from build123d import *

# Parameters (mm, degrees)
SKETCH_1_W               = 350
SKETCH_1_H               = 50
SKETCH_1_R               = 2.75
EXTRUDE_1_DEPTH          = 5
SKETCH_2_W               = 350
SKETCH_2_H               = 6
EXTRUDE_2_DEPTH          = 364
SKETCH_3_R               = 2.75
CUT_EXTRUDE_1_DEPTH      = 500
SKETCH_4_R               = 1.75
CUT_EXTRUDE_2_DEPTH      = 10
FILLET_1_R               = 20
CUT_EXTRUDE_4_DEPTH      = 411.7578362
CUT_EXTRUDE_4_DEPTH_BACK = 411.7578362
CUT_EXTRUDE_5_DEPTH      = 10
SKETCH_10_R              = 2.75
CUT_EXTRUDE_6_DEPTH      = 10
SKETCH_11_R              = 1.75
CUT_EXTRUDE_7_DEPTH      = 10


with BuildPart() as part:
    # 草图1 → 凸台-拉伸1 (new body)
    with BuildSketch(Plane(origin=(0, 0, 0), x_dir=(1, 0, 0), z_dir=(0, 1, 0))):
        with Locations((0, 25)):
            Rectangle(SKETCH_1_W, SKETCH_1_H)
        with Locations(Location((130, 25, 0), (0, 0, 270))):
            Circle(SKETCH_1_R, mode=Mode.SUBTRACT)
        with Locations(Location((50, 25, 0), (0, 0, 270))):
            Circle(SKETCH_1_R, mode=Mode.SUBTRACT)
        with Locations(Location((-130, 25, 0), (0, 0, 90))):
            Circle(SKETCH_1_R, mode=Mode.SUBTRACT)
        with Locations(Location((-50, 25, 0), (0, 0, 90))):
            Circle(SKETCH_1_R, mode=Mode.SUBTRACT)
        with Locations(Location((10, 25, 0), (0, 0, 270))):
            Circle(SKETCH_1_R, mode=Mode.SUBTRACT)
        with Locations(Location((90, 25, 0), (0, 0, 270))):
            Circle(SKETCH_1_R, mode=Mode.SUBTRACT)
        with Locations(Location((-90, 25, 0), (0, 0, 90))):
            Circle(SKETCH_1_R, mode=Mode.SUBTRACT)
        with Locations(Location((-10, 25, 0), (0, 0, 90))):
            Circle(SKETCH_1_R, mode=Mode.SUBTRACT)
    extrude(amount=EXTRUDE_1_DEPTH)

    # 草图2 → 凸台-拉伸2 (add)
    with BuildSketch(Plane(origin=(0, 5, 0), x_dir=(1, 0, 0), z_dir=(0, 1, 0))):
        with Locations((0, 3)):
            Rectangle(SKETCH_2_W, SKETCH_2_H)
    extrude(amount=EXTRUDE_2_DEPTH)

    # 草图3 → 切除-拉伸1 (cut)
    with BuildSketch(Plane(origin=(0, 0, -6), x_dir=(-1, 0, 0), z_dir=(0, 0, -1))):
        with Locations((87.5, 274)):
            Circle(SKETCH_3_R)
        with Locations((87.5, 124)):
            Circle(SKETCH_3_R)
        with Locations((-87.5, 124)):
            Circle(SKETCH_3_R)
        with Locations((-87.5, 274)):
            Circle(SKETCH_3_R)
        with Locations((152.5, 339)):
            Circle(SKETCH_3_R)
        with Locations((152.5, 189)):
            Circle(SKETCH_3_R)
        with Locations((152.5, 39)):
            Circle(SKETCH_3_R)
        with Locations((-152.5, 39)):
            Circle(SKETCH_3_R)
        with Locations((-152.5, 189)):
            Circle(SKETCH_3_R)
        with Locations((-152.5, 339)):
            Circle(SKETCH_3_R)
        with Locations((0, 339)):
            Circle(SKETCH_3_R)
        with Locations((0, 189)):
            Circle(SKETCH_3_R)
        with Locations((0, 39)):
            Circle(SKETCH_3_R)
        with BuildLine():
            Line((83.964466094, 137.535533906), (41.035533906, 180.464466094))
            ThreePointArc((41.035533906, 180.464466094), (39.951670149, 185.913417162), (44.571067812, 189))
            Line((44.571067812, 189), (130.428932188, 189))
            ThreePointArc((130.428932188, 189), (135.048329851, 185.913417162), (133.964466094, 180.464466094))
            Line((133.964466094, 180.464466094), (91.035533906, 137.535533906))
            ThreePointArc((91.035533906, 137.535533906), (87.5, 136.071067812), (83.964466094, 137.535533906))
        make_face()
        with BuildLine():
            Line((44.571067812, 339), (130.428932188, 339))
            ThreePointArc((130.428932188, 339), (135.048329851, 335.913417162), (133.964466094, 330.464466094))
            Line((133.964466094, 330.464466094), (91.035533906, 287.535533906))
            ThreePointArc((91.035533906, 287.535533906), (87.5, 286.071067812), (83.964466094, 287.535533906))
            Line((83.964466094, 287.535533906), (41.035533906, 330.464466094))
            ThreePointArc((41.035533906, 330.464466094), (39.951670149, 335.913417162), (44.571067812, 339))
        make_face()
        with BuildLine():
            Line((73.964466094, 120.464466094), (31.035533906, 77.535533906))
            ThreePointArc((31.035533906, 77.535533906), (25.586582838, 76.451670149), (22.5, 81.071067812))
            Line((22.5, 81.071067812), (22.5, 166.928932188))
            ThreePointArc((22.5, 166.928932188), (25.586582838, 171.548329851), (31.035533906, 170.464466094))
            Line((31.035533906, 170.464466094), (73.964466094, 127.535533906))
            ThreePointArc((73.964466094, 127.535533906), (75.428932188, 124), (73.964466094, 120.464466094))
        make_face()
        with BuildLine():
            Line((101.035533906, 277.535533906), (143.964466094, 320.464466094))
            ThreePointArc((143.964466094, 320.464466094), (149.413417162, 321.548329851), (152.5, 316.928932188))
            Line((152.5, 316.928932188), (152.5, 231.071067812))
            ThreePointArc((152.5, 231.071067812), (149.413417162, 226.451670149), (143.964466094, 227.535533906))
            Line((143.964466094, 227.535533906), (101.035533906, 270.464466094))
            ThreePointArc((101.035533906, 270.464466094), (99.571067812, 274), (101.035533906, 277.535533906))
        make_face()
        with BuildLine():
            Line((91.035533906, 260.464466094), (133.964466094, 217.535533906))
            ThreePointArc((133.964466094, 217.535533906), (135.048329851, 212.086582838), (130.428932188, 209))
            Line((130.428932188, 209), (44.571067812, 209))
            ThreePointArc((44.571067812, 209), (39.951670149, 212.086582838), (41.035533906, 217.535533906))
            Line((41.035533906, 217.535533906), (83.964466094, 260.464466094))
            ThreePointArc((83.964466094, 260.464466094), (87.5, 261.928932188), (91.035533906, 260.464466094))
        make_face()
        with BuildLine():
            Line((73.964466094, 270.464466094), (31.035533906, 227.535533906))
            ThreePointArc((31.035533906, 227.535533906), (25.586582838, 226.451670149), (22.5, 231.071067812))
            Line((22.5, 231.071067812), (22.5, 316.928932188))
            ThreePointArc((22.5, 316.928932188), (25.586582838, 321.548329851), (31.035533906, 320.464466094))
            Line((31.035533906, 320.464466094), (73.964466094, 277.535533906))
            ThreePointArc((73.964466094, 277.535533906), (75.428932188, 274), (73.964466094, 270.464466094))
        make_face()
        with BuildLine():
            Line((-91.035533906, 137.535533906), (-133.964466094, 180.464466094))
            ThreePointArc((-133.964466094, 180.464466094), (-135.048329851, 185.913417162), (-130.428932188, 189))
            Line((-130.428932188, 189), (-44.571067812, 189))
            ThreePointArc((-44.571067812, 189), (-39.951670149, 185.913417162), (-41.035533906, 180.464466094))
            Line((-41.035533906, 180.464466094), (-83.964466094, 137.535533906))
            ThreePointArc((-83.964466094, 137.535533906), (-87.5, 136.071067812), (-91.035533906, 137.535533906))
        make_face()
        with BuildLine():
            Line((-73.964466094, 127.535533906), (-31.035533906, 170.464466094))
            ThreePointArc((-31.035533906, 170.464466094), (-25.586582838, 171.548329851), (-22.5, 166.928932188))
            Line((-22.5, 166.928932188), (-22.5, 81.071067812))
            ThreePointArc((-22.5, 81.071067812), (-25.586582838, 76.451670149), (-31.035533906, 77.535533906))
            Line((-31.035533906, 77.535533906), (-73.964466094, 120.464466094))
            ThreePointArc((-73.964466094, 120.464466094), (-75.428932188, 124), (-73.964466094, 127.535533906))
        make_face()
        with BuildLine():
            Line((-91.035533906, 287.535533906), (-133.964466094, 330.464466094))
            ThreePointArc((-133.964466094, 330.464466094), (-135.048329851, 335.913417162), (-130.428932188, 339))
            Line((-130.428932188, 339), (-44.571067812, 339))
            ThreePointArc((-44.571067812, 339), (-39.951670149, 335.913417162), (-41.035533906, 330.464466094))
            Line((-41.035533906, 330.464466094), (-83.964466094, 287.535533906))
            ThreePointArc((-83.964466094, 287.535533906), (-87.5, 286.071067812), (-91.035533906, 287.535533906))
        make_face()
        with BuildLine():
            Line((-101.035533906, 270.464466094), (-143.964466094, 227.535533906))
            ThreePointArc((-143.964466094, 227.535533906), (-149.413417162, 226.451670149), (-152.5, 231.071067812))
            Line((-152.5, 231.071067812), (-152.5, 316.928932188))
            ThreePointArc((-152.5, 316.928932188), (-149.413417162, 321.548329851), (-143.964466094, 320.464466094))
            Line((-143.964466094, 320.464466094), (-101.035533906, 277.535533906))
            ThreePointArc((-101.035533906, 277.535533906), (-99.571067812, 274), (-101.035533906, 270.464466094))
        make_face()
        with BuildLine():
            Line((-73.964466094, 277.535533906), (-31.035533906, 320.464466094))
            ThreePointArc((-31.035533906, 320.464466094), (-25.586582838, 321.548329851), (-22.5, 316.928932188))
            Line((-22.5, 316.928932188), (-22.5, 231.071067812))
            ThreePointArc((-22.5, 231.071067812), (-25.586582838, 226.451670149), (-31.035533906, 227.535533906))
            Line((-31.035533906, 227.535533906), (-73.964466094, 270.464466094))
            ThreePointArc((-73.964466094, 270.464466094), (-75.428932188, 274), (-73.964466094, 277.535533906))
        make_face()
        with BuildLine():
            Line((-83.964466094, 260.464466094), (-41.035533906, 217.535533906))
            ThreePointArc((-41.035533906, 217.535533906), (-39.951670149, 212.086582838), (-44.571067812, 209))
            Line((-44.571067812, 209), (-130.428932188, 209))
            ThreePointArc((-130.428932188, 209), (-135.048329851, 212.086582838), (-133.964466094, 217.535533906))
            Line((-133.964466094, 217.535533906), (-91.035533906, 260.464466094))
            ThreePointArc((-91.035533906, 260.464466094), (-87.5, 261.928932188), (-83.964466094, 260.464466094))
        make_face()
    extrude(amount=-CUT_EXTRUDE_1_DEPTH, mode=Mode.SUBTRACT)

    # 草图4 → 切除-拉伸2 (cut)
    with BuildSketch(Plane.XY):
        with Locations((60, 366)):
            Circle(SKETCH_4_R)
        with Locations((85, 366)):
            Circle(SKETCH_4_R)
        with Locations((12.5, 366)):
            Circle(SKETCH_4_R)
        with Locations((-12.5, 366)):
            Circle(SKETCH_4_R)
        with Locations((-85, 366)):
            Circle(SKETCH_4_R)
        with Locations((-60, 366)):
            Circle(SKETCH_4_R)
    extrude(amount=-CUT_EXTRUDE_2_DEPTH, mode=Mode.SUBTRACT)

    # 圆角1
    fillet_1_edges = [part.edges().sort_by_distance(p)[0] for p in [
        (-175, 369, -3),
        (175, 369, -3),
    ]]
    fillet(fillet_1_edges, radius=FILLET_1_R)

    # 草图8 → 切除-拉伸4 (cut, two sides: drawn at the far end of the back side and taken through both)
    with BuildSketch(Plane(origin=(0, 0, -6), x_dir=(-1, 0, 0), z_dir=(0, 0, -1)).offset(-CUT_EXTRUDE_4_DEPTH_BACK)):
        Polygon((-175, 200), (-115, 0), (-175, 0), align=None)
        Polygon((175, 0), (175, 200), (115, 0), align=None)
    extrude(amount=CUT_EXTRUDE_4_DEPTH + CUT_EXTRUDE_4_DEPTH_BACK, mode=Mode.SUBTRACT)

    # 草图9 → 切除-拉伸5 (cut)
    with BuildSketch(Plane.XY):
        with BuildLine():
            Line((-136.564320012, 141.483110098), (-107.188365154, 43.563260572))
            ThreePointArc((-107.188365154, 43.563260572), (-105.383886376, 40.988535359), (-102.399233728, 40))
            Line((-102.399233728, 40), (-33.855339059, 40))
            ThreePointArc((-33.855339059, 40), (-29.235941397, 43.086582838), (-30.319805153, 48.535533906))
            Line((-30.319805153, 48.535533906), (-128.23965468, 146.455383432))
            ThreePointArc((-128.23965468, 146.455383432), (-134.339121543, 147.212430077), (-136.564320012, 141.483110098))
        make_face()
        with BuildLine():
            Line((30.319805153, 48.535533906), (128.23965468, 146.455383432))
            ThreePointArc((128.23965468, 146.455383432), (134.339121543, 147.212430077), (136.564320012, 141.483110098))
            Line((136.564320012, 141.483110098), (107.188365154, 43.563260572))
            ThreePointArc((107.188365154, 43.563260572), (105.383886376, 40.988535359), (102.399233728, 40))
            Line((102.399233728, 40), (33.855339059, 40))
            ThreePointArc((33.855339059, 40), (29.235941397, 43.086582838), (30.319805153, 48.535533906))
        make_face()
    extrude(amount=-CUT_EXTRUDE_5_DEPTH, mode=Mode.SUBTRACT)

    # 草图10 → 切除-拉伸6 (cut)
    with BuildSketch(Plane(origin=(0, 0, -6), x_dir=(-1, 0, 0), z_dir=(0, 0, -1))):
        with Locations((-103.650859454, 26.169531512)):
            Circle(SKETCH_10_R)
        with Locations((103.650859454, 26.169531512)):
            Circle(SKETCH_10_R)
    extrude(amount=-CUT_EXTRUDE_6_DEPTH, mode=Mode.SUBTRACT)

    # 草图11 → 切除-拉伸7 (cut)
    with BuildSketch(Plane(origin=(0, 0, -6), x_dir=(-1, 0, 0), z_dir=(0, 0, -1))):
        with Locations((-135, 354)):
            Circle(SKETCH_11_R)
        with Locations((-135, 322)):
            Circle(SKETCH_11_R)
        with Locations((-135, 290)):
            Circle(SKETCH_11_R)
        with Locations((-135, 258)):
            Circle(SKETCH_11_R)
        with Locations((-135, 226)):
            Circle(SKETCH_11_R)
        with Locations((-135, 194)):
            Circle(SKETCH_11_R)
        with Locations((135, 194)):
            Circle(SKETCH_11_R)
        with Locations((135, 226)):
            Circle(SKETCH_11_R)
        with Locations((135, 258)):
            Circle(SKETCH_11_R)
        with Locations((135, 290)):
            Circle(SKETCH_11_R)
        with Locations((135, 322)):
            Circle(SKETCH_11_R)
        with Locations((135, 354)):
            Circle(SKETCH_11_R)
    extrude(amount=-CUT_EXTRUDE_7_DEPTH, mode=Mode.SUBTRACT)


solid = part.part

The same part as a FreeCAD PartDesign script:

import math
import FreeCAD as App
import Part
import Sketcher

V = App.Vector


def edges_at(feature, points):
    """Names of the edges that pass closest to the given points."""
    edges = feature.Shape.Edges
    near = lambda p: min(range(len(edges)), key=lambda i: edges[i].distToShape(Part.Vertex(*p))[0])
    return sorted({f"Edge{near(p) + 1}" for p in points})

doc = App.newDocument("Part")
body = doc.addObject("PartDesign::Body", "Body")

# Sketch on XZ plane
sketch1 = body.newObject("Sketcher::SketchObject", "Sketch")
sketch1.AttachmentSupport = (doc.getObject("XZ_Plane"), [""])
sketch1.MapMode = "FlatFace"
sketch1.addGeometry(Part.LineSegment(V(-175, -50, 0), V(-175, 0, 0)), False)
sketch1.addGeometry(Part.LineSegment(V(-175, 0, 0), V(175, 0, 0)), False)
sketch1.addGeometry(Part.LineSegment(V(175, 0, 0), V(175, -50, 0)), False)
sketch1.addGeometry(Part.LineSegment(V(175, -50, 0), V(-175, -50, 0)), False)
sketch1.addGeometry(Part.Circle(V(-130, -25, 0), V(0, 0, 1), 2.75), False)
sketch1.addGeometry(Part.Circle(V(-90, -25, 0), V(0, 0, 1), 2.75), False)
sketch1.addGeometry(Part.Circle(V(-50, -25, 0), V(0, 0, 1), 2.75), False)
sketch1.addGeometry(Part.Circle(V(-10, -25, 0), V(0, 0, 1), 2.75), False)
sketch1.addGeometry(Part.Circle(V(10, -25, 0), V(0, 0, 1), 2.75), False)
sketch1.addGeometry(Part.Circle(V(50, -25, 0), V(0, 0, 1), 2.75), False)
sketch1.addGeometry(Part.Circle(V(90, -25, 0), V(0, 0, 1), 2.75), False)
sketch1.addGeometry(Part.Circle(V(130, -25, 0), V(0, 0, 1), 2.75), False)
sketch1.addConstraint(Sketcher.Constraint("Coincident", 0, 2, 1, 1))
sketch1.addConstraint(Sketcher.Constraint("Coincident", 1, 2, 2, 1))
sketch1.addConstraint(Sketcher.Constraint("Coincident", 2, 2, 3, 1))
sketch1.addConstraint(Sketcher.Constraint("Coincident", 3, 2, 0, 1))
sketch1.addConstraint(Sketcher.Constraint("Vertical", 0))
sketch1.addConstraint(Sketcher.Constraint("Horizontal", 1))
sketch1.addConstraint(Sketcher.Constraint("Vertical", 2))
sketch1.addConstraint(Sketcher.Constraint("Horizontal", 3))
sketch1.addConstraint(Sketcher.Constraint("Equal", 4, 5))
sketch1.addConstraint(Sketcher.Constraint("Equal", 5, 6))
sketch1.addConstraint(Sketcher.Constraint("Equal", 6, 7))
sketch1.addConstraint(Sketcher.Constraint("Equal", 7, 8))
sketch1.addConstraint(Sketcher.Constraint("Equal", 8, 9))
sketch1.addConstraint(Sketcher.Constraint("Equal", 9, 10))
sketch1.addConstraint(Sketcher.Constraint("Equal", 10, 11))
sketch1.addConstraint(Sketcher.Constraint("Symmetric", 0, 2, 1, 2, -1, 1))
sketch1.addConstraint(Sketcher.Constraint("Symmetric", 7, 3, 8, 3, -2))
sketch1.addConstraint(Sketcher.Constraint("Symmetric", 6, 3, 9, 3, -2))
sketch1.addConstraint(Sketcher.Constraint("Symmetric", 5, 3, 10, 3, -2))
sketch1.addConstraint(Sketcher.Constraint("Symmetric", 4, 3, 11, 3, -2))
sketch1.addConstraint(Sketcher.Constraint("Horizontal", 4, 3, 5, 3))
sketch1.addConstraint(Sketcher.Constraint("Horizontal", 5, 3, 6, 3))
sketch1.addConstraint(Sketcher.Constraint("Horizontal", 6, 3, 7, 3))
sketch1.addConstraint(Sketcher.Constraint("Diameter", 4, 5.5))
sketch1.addConstraint(Sketcher.Constraint("DistanceX", 1, 1, 1, 2, 350.0))
sketch1.addConstraint(Sketcher.Constraint("DistanceY", 0, 1, 0, 2, 50.0))
sketch1.addConstraint(Sketcher.Constraint("DistanceX", 4, 3, -1, 1, 130.0))
sketch1.addConstraint(Sketcher.Constraint("DistanceY", 4, 3, -1, 1, 25.0))
sketch1.addConstraint(Sketcher.Constraint("DistanceX", 5, 3, -1, 1, 90.0))
sketch1.addConstraint(Sketcher.Constraint("DistanceX", 6, 3, -1, 1, 50.0))
sketch1.addConstraint(Sketcher.Constraint("DistanceX", 7, 3, -1, 1, 10.0))
pad1 = body.newObject("PartDesign::Pad", "Pad")
pad1.Profile = sketch1
pad1.Length = 5
pad1.Reversed = True

# Sketch on XZ plane
sketch2 = body.newObject("Sketcher::SketchObject", "Sketch001")
sketch2.AttachmentSupport = (doc.getObject("XZ_Plane"), [""])
sketch2.MapMode = "FlatFace"
sketch2.AttachmentOffset = App.Placement(V(0, 0, -5), App.Rotation())
sketch2.addGeometry(Part.LineSegment(V(-175, -6, 0), V(-175, 0, 0)), False)
sketch2.addGeometry(Part.LineSegment(V(-175, 0, 0), V(175, 0, 0)), False)
sketch2.addGeometry(Part.LineSegment(V(175, 0, 0), V(175, -6, 0)), False)
sketch2.addGeometry(Part.LineSegment(V(175, -6, 0), V(-175, -6, 0)), False)
sketch2.addConstraint(Sketcher.Constraint("Coincident", 0, 2, 1, 1))
sketch2.addConstraint(Sketcher.Constraint("Coincident", 1, 2, 2, 1))
sketch2.addConstraint(Sketcher.Constraint("Coincident", 2, 2, 3, 1))
sketch2.addConstraint(Sketcher.Constraint("Coincident", 3, 2, 0, 1))
sketch2.addConstraint(Sketcher.Constraint("Vertical", 0))
sketch2.addConstraint(Sketcher.Constraint("Horizontal", 1))
sketch2.addConstraint(Sketcher.Constraint("Vertical", 2))
sketch2.addConstraint(Sketcher.Constraint("Horizontal", 3))
sketch2.addConstraint(Sketcher.Constraint("Symmetric", 0, 2, 1, 2, -1, 1))
sketch2.addConstraint(Sketcher.Constraint("DistanceX", 1, 1, 1, 2, 350.0))
sketch2.addConstraint(Sketcher.Constraint("DistanceY", 0, 1, 0, 2, 6.0))
pad2 = body.newObject("PartDesign::Pad", "Pad001")
pad2.Profile = sketch2
pad2.Length = 364
pad2.Reversed = True

# Sketch on XY plane
sketch3 = body.newObject("Sketcher::SketchObject", "Sketch002")
sketch3.AttachmentSupport = (doc.getObject("XY_Plane"), [""])
sketch3.MapMode = "FlatFace"
sketch3.AttachmentOffset = App.Placement(V(0, 0, -6), App.Rotation())
sketch3.addGeometry(Part.Circle(V(-87.5, 274, 0), V(0, 0, 1), 2.75), False)
sketch3.addGeometry(Part.Circle(V(-87.5, 124, 0), V(0, 0, 1), 2.75), False)
sketch3.addGeometry(Part.Circle(V(87.5, 124, 0), V(0, 0, 1), 2.75), False)
sketch3.addGeometry(Part.Circle(V(87.5, 274, 0), V(0, 0, 1), 2.75), False)
sketch3.addGeometry(Part.Circle(V(-152.5, 339, 0), V(0, 0, 1), 2.75), False)
sketch3.addGeometry(Part.Circle(V(-152.5, 189, 0), V(0, 0, 1), 2.75), False)
sketch3.addGeometry(Part.Circle(V(-152.5, 39, 0), V(0, 0, 1), 2.75), False)
sketch3.addGeometry(Part.Circle(V(152.5, 39, 0), V(0, 0, 1), 2.75), False)
sketch3.addGeometry(Part.Circle(V(152.5, 189, 0), V(0, 0, 1), 2.75), False)
sketch3.addGeometry(Part.Circle(V(152.5, 339, 0), V(0, 0, 1), 2.75), False)
sketch3.addGeometry(Part.Circle(V(0, 339, 0), V(0, 0, 1), 2.75), False)
sketch3.addGeometry(Part.Circle(V(0, 189, 0), V(0, 0, 1), 2.75), False)
sketch3.addGeometry(Part.Circle(V(0, 39, 0), V(0, 0, 1), 2.75), False)
sketch3.addGeometry(Part.LineSegment(V(-41.035534, 180.464466, 0), V(-83.964466, 137.535534, 0)), False)
sketch3.addGeometry(Part.ArcOfCircle(Part.Circle(V(-87.5, 141.071068, 0), V(0, 0, 1), 5), math.radians(-135), math.radians(-45)), False)
sketch3.addGeometry(Part.LineSegment(V(-91.035534, 137.535534, 0), V(-133.964466, 180.464466, 0)), False)
sketch3.addGeometry(Part.ArcOfCircle(Part.Circle(V(-130.428932, 184, 0), V(0, 0, 1), 5), math.radians(90), math.radians(225)), False)
sketch3.addGeometry(Part.LineSegment(V(-130.428932, 189, 0), V(-44.571068, 189, 0)), False)
sketch3.addGeometry(Part.ArcOfCircle(Part.Circle(V(-44.571068, 184, 0), V(0, 0, 1), 5), math.radians(-45), math.radians(90)), False)
sketch3.addGeometry(Part.LineSegment(V(-130.428932, 339, 0), V(-44.571068, 339, 0)), False)
sketch3.addGeometry(Part.ArcOfCircle(Part.Circle(V(-44.571068, 334, 0), V(0, 0, 1), 5), math.radians(-45), math.radians(90)), False)
sketch3.addGeometry(Part.LineSegment(V(-41.035534, 330.464466, 0), V(-83.964466, 287.535534, 0)), False)
sketch3.addGeometry(Part.ArcOfCircle(Part.Circle(V(-87.5, 291.071068, 0), V(0, 0, 1), 5), math.radians(-135), math.radians(-45)), False)
sketch3.addGeometry(Part.LineSegment(V(-91.035534, 287.535534, 0), V(-133.964466, 330.464466, 0)), False)
sketch3.addGeometry(Part.ArcOfCircle(Part.Circle(V(-130.428932, 334, 0), V(0, 0, 1), 5), math.radians(90), math.radians(225)), False)
sketch3.addGeometry(Part.LineSegment(V(-31.035534, 77.535534, 0), V(-73.964466, 120.464466, 0)), False)
sketch3.addGeometry(Part.ArcOfCircle(Part.Circle(V(-70.428932, 124, 0), V(0, 0, 1), 5), math.radians(135), math.radians(225)), False)
sketch3.addGeometry(Part.LineSegment(V(-73.964466, 127.535534, 0), V(-31.035534, 170.464466, 0)), False)
sketch3.addGeometry(Part.ArcOfCircle(Part.Circle(V(-27.5, 166.928932, 0), V(0, 0, 1), 5), math.radians(0), math.radians(135)), False)
sketch3.addGeometry(Part.LineSegment(V(-22.5, 166.928932, 0), V(-22.5, 81.071068, 0)), False)
sketch3.addGeometry(Part.ArcOfCircle(Part.Circle(V(-27.5, 81.071068, 0), V(0, 0, 1), 5), math.radians(-135), math.radians(0)), False)
sketch3.addGeometry(Part.LineSegment(V(-143.964466, 320.464466, 0), V(-101.035534, 277.535534, 0)), False)
sketch3.addGeometry(Part.ArcOfCircle(Part.Circle(V(-104.571068, 274, 0), V(0, 0, 1), 5), math.radians(-45), math.radians(45)), False)
sketch3.addGeometry(Part.LineSegment(V(-101.035534, 270.464466, 0), V(-143.964466, 227.535534, 0)), False)
sketch3.addGeometry(Part.ArcOfCircle(Part.Circle(V(-147.5, 231.071068, 0), V(0, 0, 1), 5), math.radians(180), math.radians(315)), False)
sketch3.addGeometry(Part.LineSegment(V(-152.5, 231.071068, 0), V(-152.5, 316.928932, 0)), False)
sketch3.addGeometry(Part.ArcOfCircle(Part.Circle(V(-147.5, 316.928932, 0), V(0, 0, 1), 5), math.radians(45), math.radians(180)), False)
sketch3.addGeometry(Part.LineSegment(V(-133.964466, 217.535534, 0), V(-91.035534, 260.464466, 0)), False)
sketch3.addGeometry(Part.ArcOfCircle(Part.Circle(V(-87.5, 256.928932, 0), V(0, 0, 1), 5), math.radians(45), math.radians(135)), False)
sketch3.addGeometry(Part.LineSegment(V(-83.964466, 260.464466, 0), V(-41.035534, 217.535534, 0)), False)
sketch3.addGeometry(Part.ArcOfCircle(Part.Circle(V(-44.571068, 214, 0), V(0, 0, 1), 5), math.radians(-90), math.radians(45)), False)
sketch3.addGeometry(Part.LineSegment(V(-44.571068, 209, 0), V(-130.428932, 209, 0)), False)
sketch3.addGeometry(Part.ArcOfCircle(Part.Circle(V(-130.428932, 214, 0), V(0, 0, 1), 5), math.radians(135), math.radians(270)), False)
sketch3.addGeometry(Part.LineSegment(V(-31.035534, 227.535534, 0), V(-73.964466, 270.464466, 0)), False)
sketch3.addGeometry(Part.ArcOfCircle(Part.Circle(V(-70.428932, 274, 0), V(0, 0, 1), 5), math.radians(135), math.radians(225)), False)
sketch3.addGeometry(Part.LineSegment(V(-73.964466, 277.535534, 0), V(-31.035534, 320.464466, 0)), False)
sketch3.addGeometry(Part.ArcOfCircle(Part.Circle(V(-27.5, 316.928932, 0), V(0, 0, 1), 5), math.radians(0), math.radians(135)), False)
sketch3.addGeometry(Part.LineSegment(V(-22.5, 316.928932, 0), V(-22.5, 231.071068, 0)), False)
sketch3.addGeometry(Part.ArcOfCircle(Part.Circle(V(-27.5, 231.071068, 0), V(0, 0, 1), 5), math.radians(-135), math.radians(0)), False)
sketch3.addGeometry(Part.LineSegment(V(133.964466, 180.464466, 0), V(91.035534, 137.535534, 0)), False)
sketch3.addGeometry(Part.ArcOfCircle(Part.Circle(V(87.5, 141.071068, 0), V(0, 0, 1), 5), math.radians(-135), math.radians(-45)), False)
sketch3.addGeometry(Part.LineSegment(V(83.964466, 137.535534, 0), V(41.035534, 180.464466, 0)), False)
sketch3.addGeometry(Part.ArcOfCircle(Part.Circle(V(44.571068, 184, 0), V(0, 0, 1), 5), math.radians(90), math.radians(225)), False)
sketch3.addGeometry(Part.LineSegment(V(44.571068, 189, 0), V(130.428932, 189, 0)), False)
sketch3.addGeometry(Part.ArcOfCircle(Part.Circle(V(130.428932, 184, 0), V(0, 0, 1), 5), math.radians(-45), math.radians(90)), False)
sketch3.addGeometry(Part.LineSegment(V(31.035534, 170.464466, 0), V(73.964466, 127.535534, 0)), False)
sketch3.addGeometry(Part.ArcOfCircle(Part.Circle(V(70.428932, 124, 0), V(0, 0, 1), 5), math.radians(-45), math.radians(45)), False)
sketch3.addGeometry(Part.LineSegment(V(73.964466, 120.464466, 0), V(31.035534, 77.535534, 0)), False)
sketch3.addGeometry(Part.ArcOfCircle(Part.Circle(V(27.5, 81.071068, 0), V(0, 0, 1), 5), math.radians(180), math.radians(315)), False)
sketch3.addGeometry(Part.LineSegment(V(22.5, 81.071068, 0), V(22.5, 166.928932, 0)), False)
sketch3.addGeometry(Part.ArcOfCircle(Part.Circle(V(27.5, 166.928932, 0), V(0, 0, 1), 5), math.radians(45), math.radians(180)), False)
sketch3.addGeometry(Part.LineSegment(V(133.964466, 330.464466, 0), V(91.035534, 287.535534, 0)), False)
sketch3.addGeometry(Part.ArcOfCircle(Part.Circle(V(87.5, 291.071068, 0), V(0, 0, 1), 5), math.radians(-135), math.radians(-45)), False)
sketch3.addGeometry(Part.LineSegment(V(83.964466, 287.535534, 0), V(41.035534, 330.464466, 0)), False)
sketch3.addGeometry(Part.ArcOfCircle(Part.Circle(V(44.571068, 334, 0), V(0, 0, 1), 5), math.radians(90), math.radians(225)), False)
sketch3.addGeometry(Part.LineSegment(V(44.571068, 339, 0), V(130.428932, 339, 0)), False)
sketch3.addGeometry(Part.ArcOfCircle(Part.Circle(V(130.428932, 334, 0), V(0, 0, 1), 5), math.radians(-45), math.radians(90)), False)
sketch3.addGeometry(Part.LineSegment(V(143.964466, 227.535534, 0), V(101.035534, 270.464466, 0)), False)
sketch3.addGeometry(Part.ArcOfCircle(Part.Circle(V(104.571068, 274, 0), V(0, 0, 1), 5), math.radians(135), math.radians(225)), False)
sketch3.addGeometry(Part.LineSegment(V(101.035534, 277.535534, 0), V(143.964466, 320.464466, 0)), False)
sketch3.addGeometry(Part.ArcOfCircle(Part.Circle(V(147.5, 316.928932, 0), V(0, 0, 1), 5), math.radians(0), math.radians(135)), False)
sketch3.addGeometry(Part.LineSegment(V(152.5, 316.928932, 0), V(152.5, 231.071068, 0)), False)
sketch3.addGeometry(Part.ArcOfCircle(Part.Circle(V(147.5, 231.071068, 0), V(0, 0, 1), 5), math.radians(-135), math.radians(0)), False)
sketch3.addGeometry(Part.LineSegment(V(31.035534, 320.464466, 0), V(73.964466, 277.535534, 0)), False)
sketch3.addGeometry(Part.ArcOfCircle(Part.Circle(V(70.428932, 274, 0), V(0, 0, 1), 5), math.radians(-45), math.radians(45)), False)
sketch3.addGeometry(Part.LineSegment(V(73.964466, 270.464466, 0), V(31.035534, 227.535534, 0)), False)
sketch3.addGeometry(Part.ArcOfCircle(Part.Circle(V(27.5, 231.071068, 0), V(0, 0, 1), 5), math.radians(180), math.radians(315)), False)
sketch3.addGeometry(Part.LineSegment(V(22.5, 231.071068, 0), V(22.5, 316.928932, 0)), False)
sketch3.addGeometry(Part.ArcOfCircle(Part.Circle(V(27.5, 316.928932, 0), V(0, 0, 1), 5), math.radians(45), math.radians(180)), False)
sketch3.addGeometry(Part.LineSegment(V(41.035534, 217.535534, 0), V(83.964466, 260.464466, 0)), False)
sketch3.addGeometry(Part.ArcOfCircle(Part.Circle(V(87.5, 256.928932, 0), V(0, 0, 1), 5), math.radians(45), math.radians(135)), False)
sketch3.addGeometry(Part.LineSegment(V(91.035534, 260.464466, 0), V(133.964466, 217.535534, 0)), False)
sketch3.addGeometry(Part.ArcOfCircle(Part.Circle(V(130.428932, 214, 0), V(0, 0, 1), 5), math.radians(-90), math.radians(45)), False)
sketch3.addGeometry(Part.LineSegment(V(130.428932, 209, 0), V(44.571068, 209, 0)), False)
sketch3.addGeometry(Part.ArcOfCircle(Part.Circle(V(44.571068, 214, 0), V(0, 0, 1), 5), math.radians(135), math.radians(270)), False)
sketch3.addConstraint(Sketcher.Constraint("Tangent", 13, 2, 14, 2))
sketch3.addConstraint(Sketcher.Constraint("Tangent", 14, 1, 15, 1))
sketch3.addConstraint(Sketcher.Constraint("Tangent", 15, 2, 16, 2))
sketch3.addConstraint(Sketcher.Constraint("Tangent", 16, 1, 17, 1))
sketch3.addConstraint(Sketcher.Constraint("Tangent", 17, 2, 18, 2))
sketch3.addConstraint(Sketcher.Constraint("Tangent", 18, 1, 13, 1))
sketch3.addConstraint(Sketcher.Constraint("Tangent", 19, 2, 20, 2))
sketch3.addConstraint(Sketcher.Constraint("Tangent", 20, 1, 21, 1))
sketch3.addConstraint(Sketcher.Constraint("Tangent", 21, 2, 22, 2))
sketch3.addConstraint(Sketcher.Constraint("Tangent", 22, 1, 23, 1))
sketch3.addConstraint(Sketcher.Constraint("Tangent", 23, 2, 24, 2))
sketch3.addConstraint(Sketcher.Constraint("Tangent", 24, 1, 19, 1))
sketch3.addConstraint(Sketcher.Constraint("Tangent", 25, 2, 26, 2))
sketch3.addConstraint(Sketcher.Constraint("Tangent", 26, 1, 27, 1))
sketch3.addConstraint(Sketcher.Constraint("Tangent", 27, 2, 28, 2))
sketch3.addConstraint(Sketcher.Constraint("Tangent", 28, 1, 29, 1))
sketch3.addConstraint(Sketcher.Constraint("Tangent", 29, 2, 30, 2))
sketch3.addConstraint(Sketcher.Constraint("Tangent", 30, 1, 25, 1))
sketch3.addConstraint(Sketcher.Constraint("Tangent", 31, 2, 32, 2))
sketch3.addConstraint(Sketcher.Constraint("Tangent", 32, 1, 33, 1))
sketch3.addConstraint(Sketcher.Constraint("Tangent", 33, 2, 34, 2))
sketch3.addConstraint(Sketcher.Constraint("Tangent", 34, 1, 35, 1))
sketch3.addConstraint(Sketcher.Constraint("Tangent", 35, 2, 36, 2))
sketch3.addConstraint(Sketcher.Constraint("Tangent", 36, 1, 31, 1))
sketch3.addConstraint(Sketcher.Constraint("Tangent", 37, 2, 38, 2))
sketch3.addConstraint(Sketcher.Constraint("Tangent", 38, 1, 39, 1))
sketch3.addConstraint(Sketcher.Constraint("Tangent", 39, 2, 40, 2))
sketch3.addConstraint(Sketcher.Constraint("Tangent", 40, 1, 41, 1))
sketch3.addConstraint(Sketcher.Constraint("Tangent", 41, 2, 42, 2))
sketch3.addConstraint(Sketcher.Constraint("Tangent", 42, 1, 37, 1))
sketch3.addConstraint(Sketcher.Constraint("Tangent", 43, 2, 44, 2))
sketch3.addConstraint(Sketcher.Constraint("Tangent", 44, 1, 45, 1))
sketch3.addConstraint(Sketcher.Constraint("Tangent", 45, 2, 46, 2))
sketch3.addConstraint(Sketcher.Constraint("Tangent", 46, 1, 47, 1))
sketch3.addConstraint(Sketcher.Constraint("Tangent", 47, 2, 48, 2))
sketch3.addConstraint(Sketcher.Constraint("Tangent", 48, 1, 43, 1))
sketch3.addConstraint(Sketcher.Constraint("Tangent", 49, 2, 50, 2))
sketch3.addConstraint(Sketcher.Constraint("Tangent", 50, 1, 51, 1))
sketch3.addConstraint(Sketcher.Constraint("Tangent", 51, 2, 52, 2))
sketch3.addConstraint(Sketcher.Constraint("Tangent", 52, 1, 53, 1))
sketch3.addConstraint(Sketcher.Constraint("Tangent", 53, 2, 54, 2))
sketch3.addConstraint(Sketcher.Constraint("Tangent", 54, 1, 49, 1))
sketch3.addConstraint(Sketcher.Constraint("Tangent", 55, 2, 56, 2))
sketch3.addConstraint(Sketcher.Constraint("Tangent", 56, 1, 57, 1))
sketch3.addConstraint(Sketcher.Constraint("Tangent", 57, 2, 58, 2))
sketch3.addConstraint(Sketcher.Constraint("Tangent", 58, 1, 59, 1))
sketch3.addConstraint(Sketcher.Constraint("Tangent", 59, 2, 60, 2))
sketch3.addConstraint(Sketcher.Constraint("Tangent", 60, 1, 55, 1))
sketch3.addConstraint(Sketcher.Constraint("Tangent", 61, 2, 62, 2))
sketch3.addConstraint(Sketcher.Constraint("Tangent", 62, 1, 63, 1))
sketch3.addConstraint(Sketcher.Constraint("Tangent", 63, 2, 64, 2))
sketch3.addConstraint(Sketcher.Constraint("Tangent", 64, 1, 65, 1))
sketch3.addConstraint(Sketcher.Constraint("Tangent", 65, 2, 66, 2))
sketch3.addConstraint(Sketcher.Constraint("Tangent", 66, 1, 61, 1))
sketch3.addConstraint(Sketcher.Constraint("Tangent", 67, 2, 68, 2))
sketch3.addConstraint(Sketcher.Constraint("Tangent", 68, 1, 69, 1))
sketch3.addConstraint(Sketcher.Constraint("Tangent", 69, 2, 70, 2))
sketch3.addConstraint(Sketcher.Constraint("Tangent", 70, 1, 71, 1))
sketch3.addConstraint(Sketcher.Constraint("Tangent", 71, 2, 72, 2))
sketch3.addConstraint(Sketcher.Constraint("Tangent", 72, 1, 67, 1))
sketch3.addConstraint(Sketcher.Constraint("Tangent", 73, 2, 74, 2))
sketch3.addConstraint(Sketcher.Constraint("Tangent", 74, 1, 75, 1))
sketch3.addConstraint(Sketcher.Constraint("Tangent", 75, 2, 76, 2))
sketch3.addConstraint(Sketcher.Constraint("Tangent", 76, 1, 77, 1))
sketch3.addConstraint(Sketcher.Constraint("Tangent", 77, 2, 78, 2))
sketch3.addConstraint(Sketcher.Constraint("Tangent", 78, 1, 73, 1))
sketch3.addConstraint(Sketcher.Constraint("Tangent", 79, 2, 80, 2))
sketch3.addConstraint(Sketcher.Constraint("Tangent", 80, 1, 81, 1))
sketch3.addConstraint(Sketcher.Constraint("Tangent", 81, 2, 82, 2))
sketch3.addConstraint(Sketcher.Constraint("Tangent", 82, 1, 83, 1))
sketch3.addConstraint(Sketcher.Constraint("Tangent", 83, 2, 84, 2))
sketch3.addConstraint(Sketcher.Constraint("Tangent", 84, 1, 79, 1))
sketch3.addConstraint(Sketcher.Constraint("Horizontal", 17))
sketch3.addConstraint(Sketcher.Constraint("Horizontal", 19))
sketch3.addConstraint(Sketcher.Constraint("Vertical", 29))
sketch3.addConstraint(Sketcher.Constraint("Vertical", 35))
sketch3.addConstraint(Sketcher.Constraint("Horizontal", 41))
sketch3.addConstraint(Sketcher.Constraint("Vertical", 47))
sketch3.addConstraint(Sketcher.Constraint("Horizontal", 53))
sketch3.addConstraint(Sketcher.Constraint("Vertical", 59))
sketch3.addConstraint(Sketcher.Constraint("Horizontal", 65))
sketch3.addConstraint(Sketcher.Constraint("Vertical", 71))
sketch3.addConstraint(Sketcher.Constraint("Vertical", 77))
sketch3.addConstraint(Sketcher.Constraint("Horizontal", 83))
sketch3.addConstraint(Sketcher.Constraint("Equal", 0, 1))
sketch3.addConstraint(Sketcher.Constraint("Equal", 1, 2))
sketch3.addConstraint(Sketcher.Constraint("Equal", 2, 3))
sketch3.addConstraint(Sketcher.Constraint("Equal", 3, 4))
sketch3.addConstraint(Sketcher.Constraint("Equal", 4, 5))
sketch3.addConstraint(Sketcher.Constraint("Equal", 5, 6))
sketch3.addConstraint(Sketcher.Constraint("Equal", 6, 7))
sketch3.addConstraint(Sketcher.Constraint("Equal", 7, 8))
sketch3.addConstraint(Sketcher.Constraint("Equal", 8, 9))
sketch3.addConstraint(Sketcher.Constraint("Equal", 9, 10))
sketch3.addConstraint(Sketcher.Constraint("Equal", 10, 11))
sketch3.addConstraint(Sketcher.Constraint("Equal", 11, 12))
sketch3.addConstraint(Sketcher.Constraint("Equal", 14, 16))
sketch3.addConstraint(Sketcher.Constraint("Equal", 16, 18))
sketch3.addConstraint(Sketcher.Constraint("Equal", 18, 20))
sketch3.addConstraint(Sketcher.Constraint("Equal", 20, 22))
sketch3.addConstraint(Sketcher.Constraint("Equal", 22, 24))
sketch3.addConstraint(Sketcher.Constraint("Equal", 24, 26))
sketch3.addConstraint(Sketcher.Constraint("Equal", 26, 28))
sketch3.addConstraint(Sketcher.Constraint("Equal", 28, 30))
sketch3.addConstraint(Sketcher.Constraint("Equal", 30, 32))
sketch3.addConstraint(Sketcher.Constraint("Equal", 32, 34))
sketch3.addConstraint(Sketcher.Constraint("Equal", 34, 36))
sketch3.addConstraint(Sketcher.Constraint("Equal", 36, 38))
sketch3.addConstraint(Sketcher.Constraint("Equal", 38, 40))
sketch3.addConstraint(Sketcher.Constraint("Equal", 40, 42))
sketch3.addConstraint(Sketcher.Constraint("Equal", 42, 44))
sketch3.addConstraint(Sketcher.Constraint("Equal", 44, 46))
sketch3.addConstraint(Sketcher.Constraint("Equal", 46, 48))
sketch3.addConstraint(Sketcher.Constraint("Equal", 48, 50))
sketch3.addConstraint(Sketcher.Constraint("Equal", 50, 52))
sketch3.addConstraint(Sketcher.Constraint("Equal", 52, 54))
sketch3.addConstraint(Sketcher.Constraint("Equal", 54, 56))
sketch3.addConstraint(Sketcher.Constraint("Equal", 56, 58))
sketch3.addConstraint(Sketcher.Constraint("Equal", 58, 60))
sketch3.addConstraint(Sketcher.Constraint("Equal", 60, 62))
sketch3.addConstraint(Sketcher.Constraint("Equal", 62, 64))
sketch3.addConstraint(Sketcher.Constraint("Equal", 64, 66))
sketch3.addConstraint(Sketcher.Constraint("Equal", 66, 68))
sketch3.addConstraint(Sketcher.Constraint("Equal", 68, 70))
sketch3.addConstraint(Sketcher.Constraint("Equal", 70, 72))
sketch3.addConstraint(Sketcher.Constraint("Equal", 72, 74))
sketch3.addConstraint(Sketcher.Constraint("Equal", 74, 76))
sketch3.addConstraint(Sketcher.Constraint("Equal", 76, 78))
sketch3.addConstraint(Sketcher.Constraint("Equal", 78, 80))
sketch3.addConstraint(Sketcher.Constraint("Equal", 80, 82))
sketch3.addConstraint(Sketcher.Constraint("Equal", 82, 84))
sketch3.addConstraint(Sketcher.Constraint("Symmetric", 1, 3, 2, 3, -2))
sketch3.addConstraint(Sketcher.Constraint("Symmetric", 0, 3, 3, 3, -2))
sketch3.addConstraint(Sketcher.Constraint("Symmetric", 6, 3, 7, 3, -2))
sketch3.addConstraint(Sketcher.Constraint("Symmetric", 5, 3, 8, 3, -2))
sketch3.addConstraint(Sketcher.Constraint("Symmetric", 4, 3, 9, 3, -2))
sketch3.addConstraint(Sketcher.Constraint("Symmetric", 14, 3, 50, 3, -2))
sketch3.addConstraint(Sketcher.Constraint("Symmetric", 18, 3, 52, 3, -2))
sketch3.addConstraint(Sketcher.Constraint("Symmetric", 26, 3, 56, 3, -2))
sketch3.addConstraint(Sketcher.Constraint("Symmetric", 30, 3, 58, 3, -2))
sketch3.addConstraint(Sketcher.Constraint("Symmetric", 22, 3, 62, 3, -2))
sketch3.addConstraint(Sketcher.Constraint("Symmetric", 20, 3, 64, 3, -2))
sketch3.addConstraint(Sketcher.Constraint("Symmetric", 32, 3, 68, 3, -2))
sketch3.addConstraint(Sketcher.Constraint("Symmetric", 36, 3, 70, 3, -2))
sketch3.addConstraint(Sketcher.Constraint("Symmetric", 44, 3, 74, 3, -2))
sketch3.addConstraint(Sketcher.Constraint("Symmetric", 48, 3, 76, 3, -2))
sketch3.addConstraint(Sketcher.Constraint("Symmetric", 38, 3, 80, 3, -2))
sketch3.addConstraint(Sketcher.Constraint("Symmetric", 42, 3, 82, 3, -2))
sketch3.addConstraint(Sketcher.Constraint("PointOnObject", 10, 3, -2))
sketch3.addConstraint(Sketcher.Constraint("PointOnObject", 11, 3, -2))
sketch3.addConstraint(Sketcher.Constraint("PointOnObject", 12, 3, -2))
sketch3.addConstraint(Sketcher.Constraint("Perpendicular", 13, 15))
sketch3.addConstraint(Sketcher.Constraint("Perpendicular", 15, 21))
sketch3.addConstraint(Sketcher.Constraint("Perpendicular", 21, 23))
sketch3.addConstraint(Sketcher.Constraint("Parallel", 23, 25))
sketch3.addConstraint(Sketcher.Constraint("Perpendicular", 25, 27))
sketch3.addConstraint(Sketcher.Constraint("Perpendicular", 27, 31))
sketch3.addConstraint(Sketcher.Constraint("Perpendicular", 31, 33))
sketch3.addConstraint(Sketcher.Constraint("Parallel", 33, 37))
sketch3.addConstraint(Sketcher.Constraint("Perpendicular", 37, 39))
sketch3.addConstraint(Sketcher.Constraint("Parallel", 39, 43))
sketch3.addConstraint(Sketcher.Constraint("Perpendicular", 43, 45))
sketch3.addConstraint(Sketcher.Constraint("Parallel", 45, 49))
sketch3.addConstraint(Sketcher.Constraint("Perpendicular", 49, 51))
sketch3.addConstraint(Sketcher.Constraint("Parallel", 51, 55))
sketch3.addConstraint(Sketcher.Constraint("Parallel", 57, 61))
sketch3.addConstraint(Sketcher.Constraint("Parallel", 63, 67))
sketch3.addConstraint(Sketcher.Constraint("Perpendicular", 69, 73))
sketch3.addConstraint(Sketcher.Constraint("Parallel", 75, 79))
sketch3.addConstraint(Sketcher.Constraint("Horizontal", 9, 3, 10, 3))
sketch3.addConstraint(Sketcher.Constraint("Horizontal", 8, 3, 11, 3))
sketch3.addConstraint(Sketcher.Constraint("Horizontal", 7, 3, 12, 3))
sketch3.addConstraint(Sketcher.Constraint("Horizontal", 2, 3, 26, 3))
sketch3.addConstraint(Sketcher.Constraint("Horizontal", 3, 3, 32, 3))
sketch3.addConstraint(Sketcher.Constraint("Horizontal", 32, 3, 44, 3))
sketch3.addConstraint(Sketcher.Constraint("Horizontal", 36, 3, 46, 3))
sketch3.addConstraint(Sketcher.Constraint("Horizontal", 11, 3, 16, 1))
sketch3.addConstraint(Sketcher.Constraint("Horizontal", 10, 3, 19, 2))
sketch3.addConstraint(Sketcher.Constraint("Vertical", 0, 3, 1, 3))
sketch3.addConstraint(Sketcher.Constraint("Vertical", 4, 3, 5, 3))
sketch3.addConstraint(Sketcher.Constraint("Vertical", 5, 3, 6, 3))
sketch3.addConstraint(Sketcher.Constraint("Vertical", 1, 3, 14, 3))
sketch3.addConstraint(Sketcher.Constraint("Vertical", 18, 3, 20, 3))
sketch3.addConstraint(Sketcher.Constraint("Vertical", 14, 3, 22, 3))
sketch3.addConstraint(Sketcher.Constraint("Vertical", 22, 3, 38, 3))
sketch3.addConstraint(Sketcher.Constraint("Vertical", 20, 3, 40, 3))
sketch3.addConstraint(Sketcher.Constraint("Vertical", 26, 3, 44, 3))
sketch3.addConstraint(Sketcher.Constraint("Vertical", 30, 3, 46, 3))
sketch3.addConstraint(Sketcher.Constraint("Vertical", 6, 3, 34, 1))
sketch3.addConstraint(Sketcher.Constraint("Equal", 83, 29))
sketch3.addConstraint(Sketcher.Constraint("Radius", 14, 5.0))
sketch3.addConstraint(Sketcher.Constraint("Diameter", 0, 5.5))
sketch3.addConstraint(Sketcher.Constraint("DistanceY", -1, 1, 0, 3, 274.0))
sketch3.addConstraint(Sketcher.Constraint("DistanceY", -1, 1, 1, 3, 124.0))
sketch3.addConstraint(Sketcher.Constraint("DistanceY", -1, 1, 4, 3, 339.0))
sketch3.addConstraint(Sketcher.Constraint("DistanceY", -1, 1, 5, 3, 189.0))
sketch3.addConstraint(Sketcher.Constraint("DistanceY", -1, 1, 6, 3, 39.0))
sketch3.addConstraint(Sketcher.Constraint("DistanceY", -1, 1, 40, 3, 214.0))
sketch3.addConstraint(Sketcher.Constraint("DistanceX", 0, 3, -1, 1, 87.5))
sketch3.addConstraint(Sketcher.Constraint("DistanceX", 4, 3, -1, 1, 152.5))
sketch3.addConstraint(Sketcher.Constraint("DistanceX", 28, 3, -1, 1, 27.5))
sketch3.addConstraint(Sketcher.Constraint("Distance", 13, 60.710678))
pocket1 = body.newObject("PartDesign::Pocket", "Pocket")
pocket1.Profile = sketch3
pocket1.Length = 500
pocket1.Reversed = True

# Sketch on XY plane
sketch4 = body.newObject("Sketcher::SketchObject", "Sketch003")
sketch4.AttachmentSupport = (doc.getObject("XY_Plane"), [""])
sketch4.MapMode = "FlatFace"
sketch4.addGeometry(Part.Circle(V(60, 366, 0), V(0, 0, 1), 1.75), False)
sketch4.addGeometry(Part.Circle(V(85, 366, 0), V(0, 0, 1), 1.75), False)
sketch4.addGeometry(Part.Circle(V(12.5, 366, 0), V(0, 0, 1), 1.75), False)
sketch4.addGeometry(Part.Circle(V(-12.5, 366, 0), V(0, 0, 1), 1.75), False)
sketch4.addGeometry(Part.Circle(V(-85, 366, 0), V(0, 0, 1), 1.75), False)
sketch4.addGeometry(Part.Circle(V(-60, 366, 0), V(0, 0, 1), 1.75), False)
sketch4.addConstraint(Sketcher.Constraint("Equal", 0, 1))
sketch4.addConstraint(Sketcher.Constraint("Equal", 1, 2))
sketch4.addConstraint(Sketcher.Constraint("Equal", 2, 3))
sketch4.addConstraint(Sketcher.Constraint("Equal", 3, 4))
sketch4.addConstraint(Sketcher.Constraint("Equal", 4, 5))
sketch4.addConstraint(Sketcher.Constraint("Symmetric", 2, 3, 3, 3, -2))
sketch4.addConstraint(Sketcher.Constraint("Symmetric", 1, 3, 4, 3, -2))
sketch4.addConstraint(Sketcher.Constraint("Symmetric", 0, 3, 5, 3, -2))
sketch4.addConstraint(Sketcher.Constraint("Horizontal", 0, 3, 1, 3))
sketch4.addConstraint(Sketcher.Constraint("Horizontal", 1, 3, 2, 3))
sketch4.addConstraint(Sketcher.Constraint("Diameter", 0, 3.5))
sketch4.addConstraint(Sketcher.Constraint("DistanceX", -1, 1, 0, 3, 60.0))
sketch4.addConstraint(Sketcher.Constraint("DistanceY", -1, 1, 0, 3, 366.0))
sketch4.addConstraint(Sketcher.Constraint("DistanceX", -1, 1, 1, 3, 85.0))
sketch4.addConstraint(Sketcher.Constraint("DistanceX", 3, 3, 2, 3, 25.0))
pocket2 = body.newObject("PartDesign::Pocket", "Pocket001")
pocket2.Profile = sketch4
pocket2.Length = 10
doc.recompute()

fillet = body.newObject("PartDesign::Fillet", "Fillet")
fillet.Base = (pocket2, edges_at(pocket2, [(-175, 369, -3), (175, 369, -3)]))
fillet.Radius = 20

# Sketch on XY plane
sketch5 = body.newObject("Sketcher::SketchObject", "Sketch004")
sketch5.AttachmentSupport = (doc.getObject("XY_Plane"), [""])
sketch5.MapMode = "FlatFace"
sketch5.AttachmentOffset = App.Placement(V(0, 0, -6), App.Rotation())
sketch5.addGeometry(Part.LineSegment(V(115, 0, 0), V(175, 200, 0)), False)
sketch5.addGeometry(Part.LineSegment(V(175, 200, 0), V(175, 0, 0)), False)
sketch5.addGeometry(Part.LineSegment(V(175, 0, 0), V(115, 0, 0)), False)
sketch5.addGeometry(Part.LineSegment(V(-175, 0, 0), V(-175, 200, 0)), False)
sketch5.addGeometry(Part.LineSegment(V(-175, 200, 0), V(-115, 0, 0)), False)
sketch5.addGeometry(Part.LineSegment(V(-115, 0, 0), V(-175, 0, 0)), False)
sketch5.addConstraint(Sketcher.Constraint("Coincident", 0, 2, 1, 1))
sketch5.addConstraint(Sketcher.Constraint("Coincident", 1, 2, 2, 1))
sketch5.addConstraint(Sketcher.Constraint("Coincident", 2, 2, 0, 1))
sketch5.addConstraint(Sketcher.Constraint("Coincident", 3, 2, 4, 1))
sketch5.addConstraint(Sketcher.Constraint("Coincident", 4, 2, 5, 1))
sketch5.addConstraint(Sketcher.Constraint("Coincident", 5, 2, 3, 1))
sketch5.addConstraint(Sketcher.Constraint("Vertical", 1))
sketch5.addConstraint(Sketcher.Constraint("Horizontal", 2))
sketch5.addConstraint(Sketcher.Constraint("Vertical", 3))
sketch5.addConstraint(Sketcher.Constraint("Horizontal", 5))
sketch5.addConstraint(Sketcher.Constraint("Symmetric", 2, 2, 4, 2, -1, 1))
sketch5.addConstraint(Sketcher.Constraint("Symmetric", 0, 2, 3, 2, -2))
sketch5.addConstraint(Sketcher.Constraint("PointOnObject", 1, 2, -1))
sketch5.addConstraint(Sketcher.Constraint("DistanceX", 2, 2, 2, 1, 60.0))
sketch5.addConstraint(Sketcher.Constraint("DistanceY", 1, 2, 1, 1, 200.0))
sketch5.addConstraint(Sketcher.Constraint("DistanceX", -1, 1, 0, 2, 175.0))
pocket3 = body.newObject("PartDesign::Pocket", "Pocket002")
pocket3.Profile = sketch5
pocket3.Type = "ThroughAll"
pocket3.Midplane = True

# Sketch on XY plane
sketch6 = body.newObject("Sketcher::SketchObject", "Sketch005")
sketch6.AttachmentSupport = (doc.getObject("XY_Plane"), [""])
sketch6.MapMode = "FlatFace"
sketch6.addGeometry(Part.LineSegment(V(-136.56432, 141.48311, 0), V(-107.188365, 43.563261, 0)), False)
sketch6.addGeometry(Part.ArcOfCircle(Part.Circle(V(-102.399234, 45, 0), V(0, 0, 1), 5), math.radians(-163.300756), math.radians(-90)), False)
sketch6.addGeometry(Part.LineSegment(V(-102.399234, 40, 0), V(-33.855339, 40, 0)), False)
sketch6.addGeometry(Part.ArcOfCircle(Part.Circle(V(-33.855339, 45, 0), V(0, 0, 1), 5), math.radians(-90), math.radians(45)), False)
sketch6.addGeometry(Part.LineSegment(V(-30.319805, 48.535534, 0), V(-128.239655, 146.455383, 0)), False)
sketch6.addGeometry(Part.ArcOfCircle(Part.Circle(V(-131.775189, 142.91985, 0), V(0, 0, 1), 5), math.radians(45), math.radians(196.699244)), False)
sketch6.addGeometry(Part.LineSegment(V(128.239655, 146.455383, 0), V(30.319805, 48.535534, 0)), False)
sketch6.addGeometry(Part.ArcOfCircle(Part.Circle(V(33.855339, 45, 0), V(0, 0, 1), 5), math.radians(135), math.radians(270)), False)
sketch6.addGeometry(Part.LineSegment(V(33.855339, 40, 0), V(102.399234, 40, 0)), False)
sketch6.addGeometry(Part.ArcOfCircle(Part.Circle(V(102.399234, 45, 0), V(0, 0, 1), 5), math.radians(-90), math.radians(-16.699244)), False)
sketch6.addGeometry(Part.LineSegment(V(107.188365, 43.563261, 0), V(136.56432, 141.48311, 0)), False)
sketch6.addGeometry(Part.ArcOfCircle(Part.Circle(V(131.775189, 142.91985, 0), V(0, 0, 1), 5), math.radians(-16.699244), math.radians(135)), False)
sketch6.addConstraint(Sketcher.Constraint("Tangent", 0, 2, 1, 1))
sketch6.addConstraint(Sketcher.Constraint("Tangent", 1, 2, 2, 1))
sketch6.addConstraint(Sketcher.Constraint("Tangent", 2, 2, 3, 1))
sketch6.addConstraint(Sketcher.Constraint("Tangent", 3, 2, 4, 1))
sketch6.addConstraint(Sketcher.Constraint("Tangent", 4, 2, 5, 1))
sketch6.addConstraint(Sketcher.Constraint("Tangent", 5, 2, 0, 1))
sketch6.addConstraint(Sketcher.Constraint("Tangent", 6, 2, 7, 1))
sketch6.addConstraint(Sketcher.Constraint("Tangent", 7, 2, 8, 1))
sketch6.addConstraint(Sketcher.Constraint("Tangent", 8, 2, 9, 1))
sketch6.addConstraint(Sketcher.Constraint("Tangent", 9, 2, 10, 1))
sketch6.addConstraint(Sketcher.Constraint("Tangent", 10, 2, 11, 1))
sketch6.addConstraint(Sketcher.Constraint("Tangent", 11, 2, 6, 1))
sketch6.addConstraint(Sketcher.Constraint("Horizontal", 2))
sketch6.addConstraint(Sketcher.Constraint("Horizontal", 8))
sketch6.addConstraint(Sketcher.Constraint("Equal", 1, 3))
sketch6.addConstraint(Sketcher.Constraint("Equal", 3, 5))
sketch6.addConstraint(Sketcher.Constraint("Equal", 5, 7))
sketch6.addConstraint(Sketcher.Constraint("Equal", 7, 9))
sketch6.addConstraint(Sketcher.Constraint("Equal", 9, 11))
sketch6.addConstraint(Sketcher.Constraint("Symmetric", 3, 3, 7, 3, -2))
sketch6.addConstraint(Sketcher.Constraint("Symmetric", 5, 3, 11, 3, -2))
sketch6.addConstraint(Sketcher.Constraint("Perpendicular", 4, 6))
sketch6.addConstraint(Sketcher.Constraint("Horizontal", 0, 2, 9, 2))
sketch6.addConstraint(Sketcher.Constraint("Radius", 1, 5.0))
sketch6.addConstraint(Sketcher.Constraint("DistanceY", -1, 1, 1, 3, 45.0))
sketch6.addConstraint(Sketcher.Constraint("DistanceX", 0, 2, 9, 3, 209.587599))
sketch6.addConstraint(Sketcher.Constraint("Distance", 4, 138.479579))
sketch6.addConstraint(Sketcher.Constraint("DistanceX", 2, 1, 2, 2, 68.543895))
pocket4 = body.newObject("PartDesign::Pocket", "Pocket003")
pocket4.Profile = sketch6
pocket4.Length = 10

# Sketch on XY plane
sketch7 = body.newObject("Sketcher::SketchObject", "Sketch006")
sketch7.AttachmentSupport = (doc.getObject("XY_Plane"), [""])
sketch7.MapMode = "FlatFace"
sketch7.AttachmentOffset = App.Placement(V(0, 0, -6), App.Rotation())
sketch7.addGeometry(Part.Circle(V(103.650859, 26.169532, 0), V(0, 0, 1), 2.75), False)
sketch7.addGeometry(Part.Circle(V(-103.650859, 26.169532, 0), V(0, 0, 1), 2.75), False)
sketch7.addConstraint(Sketcher.Constraint("Equal", 0, 1))
sketch7.addConstraint(Sketcher.Constraint("Symmetric", 0, 3, 1, 3, -2))
sketch7.addConstraint(Sketcher.Constraint("Diameter", 0, 5.5))
sketch7.addConstraint(Sketcher.Constraint("DistanceX", -1, 1, 0, 3, 103.650859))
sketch7.addConstraint(Sketcher.Constraint("DistanceY", -1, 1, 0, 3, 26.169532))
pocket5 = body.newObject("PartDesign::Pocket", "Pocket004")
pocket5.Profile = sketch7
pocket5.Length = 10
pocket5.Reversed = True

# Sketch on XY plane
sketch8 = body.newObject("Sketcher::SketchObject", "Sketch007")
sketch8.AttachmentSupport = (doc.getObject("XY_Plane"), [""])
sketch8.MapMode = "FlatFace"
sketch8.AttachmentOffset = App.Placement(V(0, 0, -6), App.Rotation())
sketch8.addGeometry(Part.Circle(V(135, 354, 0), V(0, 0, 1), 1.75), False)
sketch8.addGeometry(Part.Circle(V(135, 322, 0), V(0, 0, 1), 1.75), False)
sketch8.addGeometry(Part.Circle(V(135, 290, 0), V(0, 0, 1), 1.75), False)
sketch8.addGeometry(Part.Circle(V(135, 258, 0), V(0, 0, 1), 1.75), False)
sketch8.addGeometry(Part.Circle(V(135, 226, 0), V(0, 0, 1), 1.75), False)
sketch8.addGeometry(Part.Circle(V(135, 194, 0), V(0, 0, 1), 1.75), False)
sketch8.addGeometry(Part.Circle(V(-135, 194, 0), V(0, 0, 1), 1.75), False)
sketch8.addGeometry(Part.Circle(V(-135, 226, 0), V(0, 0, 1), 1.75), False)
sketch8.addGeometry(Part.Circle(V(-135, 258, 0), V(0, 0, 1), 1.75), False)
sketch8.addGeometry(Part.Circle(V(-135, 290, 0), V(0, 0, 1), 1.75), False)
sketch8.addGeometry(Part.Circle(V(-135, 322, 0), V(0, 0, 1), 1.75), False)
sketch8.addGeometry(Part.Circle(V(-135, 354, 0), V(0, 0, 1), 1.75), False)
sketch8.addConstraint(Sketcher.Constraint("Equal", 0, 1))
sketch8.addConstraint(Sketcher.Constraint("Equal", 1, 2))
sketch8.addConstraint(Sketcher.Constraint("Equal", 2, 3))
sketch8.addConstraint(Sketcher.Constraint("Equal", 3, 4))
sketch8.addConstraint(Sketcher.Constraint("Equal", 4, 5))
sketch8.addConstraint(Sketcher.Constraint("Equal", 5, 6))
sketch8.addConstraint(Sketcher.Constraint("Equal", 6, 7))
sketch8.addConstraint(Sketcher.Constraint("Equal", 7, 8))
sketch8.addConstraint(Sketcher.Constraint("Equal", 8, 9))
sketch8.addConstraint(Sketcher.Constraint("Equal", 9, 10))
sketch8.addConstraint(Sketcher.Constraint("Equal", 10, 11))
sketch8.addConstraint(Sketcher.Constraint("Symmetric", 5, 3, 6, 3, -2))
sketch8.addConstraint(Sketcher.Constraint("Symmetric", 4, 3, 7, 3, -2))
sketch8.addConstraint(Sketcher.Constraint("Symmetric", 3, 3, 8, 3, -2))
sketch8.addConstraint(Sketcher.Constraint("Symmetric", 2, 3, 9, 3, -2))
sketch8.addConstraint(Sketcher.Constraint("Symmetric", 1, 3, 10, 3, -2))
sketch8.addConstraint(Sketcher.Constraint("Symmetric", 0, 3, 11, 3, -2))
sketch8.addConstraint(Sketcher.Constraint("Vertical", 0, 3, 1, 3))
sketch8.addConstraint(Sketcher.Constraint("Vertical", 1, 3, 2, 3))
sketch8.addConstraint(Sketcher.Constraint("Vertical", 2, 3, 3, 3))
sketch8.addConstraint(Sketcher.Constraint("Vertical", 3, 3, 4, 3))
sketch8.addConstraint(Sketcher.Constraint("Vertical", 4, 3, 5, 3))
sketch8.addConstraint(Sketcher.Constraint("Diameter", 0, 3.5))
sketch8.addConstraint(Sketcher.Constraint("DistanceX", -1, 1, 0, 3, 135.0))
sketch8.addConstraint(Sketcher.Constraint("DistanceY", -1, 1, 0, 3, 354.0))
sketch8.addConstraint(Sketcher.Constraint("DistanceY", -1, 1, 1, 3, 322.0))
sketch8.addConstraint(Sketcher.Constraint("DistanceY", -1, 1, 2, 3, 290.0))
sketch8.addConstraint(Sketcher.Constraint("DistanceY", -1, 1, 3, 3, 258.0))
sketch8.addConstraint(Sketcher.Constraint("DistanceY", -1, 1, 4, 3, 226.0))
sketch8.addConstraint(Sketcher.Constraint("DistanceY", -1, 1, 5, 3, 194.0))
pocket6 = body.newObject("PartDesign::Pocket", "Pocket005")
pocket6.Profile = sketch8
pocket6.Length = 10
pocket6.Reversed = True

doc.recompute()
